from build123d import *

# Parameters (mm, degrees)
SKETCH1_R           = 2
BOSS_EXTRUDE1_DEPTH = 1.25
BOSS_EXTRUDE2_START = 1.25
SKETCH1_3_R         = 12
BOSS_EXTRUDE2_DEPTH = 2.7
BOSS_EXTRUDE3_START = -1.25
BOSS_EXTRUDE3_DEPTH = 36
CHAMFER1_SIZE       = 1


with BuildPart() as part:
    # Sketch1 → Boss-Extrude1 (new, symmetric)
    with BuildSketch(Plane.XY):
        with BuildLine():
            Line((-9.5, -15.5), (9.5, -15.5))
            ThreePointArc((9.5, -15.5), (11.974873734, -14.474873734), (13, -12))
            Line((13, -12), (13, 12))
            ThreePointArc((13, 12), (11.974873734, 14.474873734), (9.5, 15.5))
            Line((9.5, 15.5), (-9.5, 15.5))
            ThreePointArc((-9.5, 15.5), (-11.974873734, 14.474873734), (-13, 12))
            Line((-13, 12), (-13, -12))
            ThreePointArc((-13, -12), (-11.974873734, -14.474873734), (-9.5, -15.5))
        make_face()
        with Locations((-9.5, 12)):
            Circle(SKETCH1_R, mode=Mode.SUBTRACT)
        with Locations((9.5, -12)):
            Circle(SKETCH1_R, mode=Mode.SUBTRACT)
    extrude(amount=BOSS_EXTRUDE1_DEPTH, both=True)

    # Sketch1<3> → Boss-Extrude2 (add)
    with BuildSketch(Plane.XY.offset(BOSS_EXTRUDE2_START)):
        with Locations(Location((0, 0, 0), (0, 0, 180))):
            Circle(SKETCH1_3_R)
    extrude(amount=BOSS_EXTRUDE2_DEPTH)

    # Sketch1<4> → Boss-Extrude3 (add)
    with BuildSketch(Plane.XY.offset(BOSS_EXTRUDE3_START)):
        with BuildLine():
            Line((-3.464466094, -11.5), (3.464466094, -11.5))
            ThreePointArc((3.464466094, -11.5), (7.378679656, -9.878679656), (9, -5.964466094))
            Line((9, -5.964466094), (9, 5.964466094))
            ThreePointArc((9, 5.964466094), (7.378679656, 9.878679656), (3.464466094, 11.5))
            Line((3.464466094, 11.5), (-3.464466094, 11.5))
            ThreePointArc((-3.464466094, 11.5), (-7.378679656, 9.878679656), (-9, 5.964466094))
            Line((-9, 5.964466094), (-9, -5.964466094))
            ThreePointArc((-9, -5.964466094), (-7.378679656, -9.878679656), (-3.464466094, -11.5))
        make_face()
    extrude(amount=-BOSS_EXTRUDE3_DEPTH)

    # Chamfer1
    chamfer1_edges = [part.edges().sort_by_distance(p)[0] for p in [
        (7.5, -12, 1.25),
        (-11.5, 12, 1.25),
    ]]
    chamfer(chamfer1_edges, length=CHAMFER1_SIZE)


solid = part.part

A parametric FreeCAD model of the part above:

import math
import FreeCAD as App
import Part
import Sketcher
Q = App.Units.Quantity


def edges_at(feature, points):
    """Names of the edges that pass closest to the given points."""
    edges = feature.Shape.Edges
    near = lambda p: min(range(len(edges)), key=lambda i: edges[i].distToShape(Part.Vertex(*p))[0])
    return sorted({f"Edge{near(p) + 1}" for p in points})

doc = App.newDocument("Part")
params = doc.addObject("Spreadsheet::Sheet", "Params")
for row, (alias, value) in enumerate([
    ("sketch1_diameter", "4 mm"),
    ("sketch1_radius", "3.5 mm"),
    ("sketch1_width", "19 mm"),
    ("sketch1_height", "24 mm"),
    ("pad1_length", "2.5 mm"),
    ("sketch2_diameter", "24 mm"),
    ("pad2_length", "2.7 mm"),
    ("pad3_length", "36 mm"),
    ("chamfer_size", "1 mm"),
], start=1):
    params.set(f"A{row}", alias)
    params.set(f"B{row}", "=" + value)
    params.setAlias(f"B{row}", alias)

body = doc.addObject("PartDesign::Body", "Body")

# Sketch on XY plane
sketch1 = body.newObject("Sketcher::SketchObject", "Sketch")
sketch1.AttachmentSupport = (doc.getObject("XY_Plane"), [""])
sketch1.MapMode = "FlatFace"
sketch1.addGeometry(Part.LineSegment(App.Vector(-9.5, -15.5, 0), App.Vector(9.5, -15.5, 0)), False)
sketch1.addGeometry(Part.ArcOfCircle(Part.Circle(App.Vector(9.5, -12, 0), App.Vector(0, 0, 1), 3.5), math.radians(-90), math.radians(0)), False)
sketch1.addGeometry(Part.LineSegment(App.Vector(13, -12, 0), App.Vector(13, 12, 0)), False)
sketch1.addGeometry(Part.ArcOfCircle(Part.Circle(App.Vector(9.5, 12, 0), App.Vector(0, 0, 1), 3.5), math.radians(0), math.radians(90)), False)
sketch1.addGeometry(Part.LineSegment(App.Vector(9.5, 15.5, 0), App.Vector(-9.5, 15.5, 0)), False)
sketch1.addGeometry(Part.ArcOfCircle(Part.Circle(App.Vector(-9.5, 12, 0), App.Vector(0, 0, 1), 3.5), math.radians(90), math.radians(180)), False)
sketch1.addGeometry(Part.LineSegment(App.Vector(-13, 12, 0), App.Vector(-13, -12, 0)), False)
sketch1.addGeometry(Part.ArcOfCircle(Part.Circle(App.Vector(-9.5, -12, 0), App.Vector(0, 0, 1), 3.5), math.radians(-180), math.radians(-90)), False)
sketch1.addGeometry(Part.Circle(App.Vector(9.5, -12, 0), App.Vector(0, 0, 1), 2), False)
sketch1.addGeometry(Part.Circle(App.Vector(-9.5, 12, 0), App.Vector(0, 0, 1), 2), False)
sketch1.addConstraint(Sketcher.Constraint("Tangent", 0, 2, 1, 1))
sketch1.addConstraint(Sketcher.Constraint("Tangent", 1, 2, 2, 1))
sketch1.addConstraint(Sketcher.Constraint("Tangent", 2, 2, 3, 1))
sketch1.addConstraint(Sketcher.Constraint("Tangent", 3, 2, 4, 1))
sketch1.addConstraint(Sketcher.Constraint("Tangent", 4, 2, 5, 1))
sketch1.addConstraint(Sketcher.Constraint("Tangent", 5, 2, 6, 1))
sketch1.addConstraint(Sketcher.Constraint("Tangent", 6, 2, 7, 1))
sketch1.addConstraint(Sketcher.Constraint("Tangent", 7, 2, 0, 1))
sketch1.addConstraint(Sketcher.Constraint("Horizontal", 0))
sketch1.addConstraint(Sketcher.Constraint("Vertical", 2))
sketch1.addConstraint(Sketcher.Constraint("Horizontal", 4))
sketch1.addConstraint(Sketcher.Constraint("Vertical", 6))
sketch1.addConstraint(Sketcher.Constraint("Coincident", 8, 3, 1, 3))
sketch1.addConstraint(Sketcher.Constraint("Coincident", 9, 3, 5, 3))
sketch1.addConstraint(Sketcher.Constraint("Equal", 1, 3))
sketch1.addConstraint(Sketcher.Constraint("Equal", 3, 5))
sketch1.addConstraint(Sketcher.Constraint("Equal", 5, 7))
sketch1.addConstraint(Sketcher.Constraint("Equal", 8, 9))
sketch1.addConstraint(Sketcher.Constraint("Symmetric", 1, 3, 5, 3, -1, 1))
sketch1.addConstraint(Sketcher.Constraint("Diameter", 8, Q("4 mm")))
sketch1.addConstraint(Sketcher.Constraint("Radius", 1, Q("3.5 mm")))
sketch1.addConstraint(Sketcher.Constraint("DistanceX", 0, 1, 0, 2, Q("19 mm")))
sketch1.addConstraint(Sketcher.Constraint("DistanceY", 2, 1, 2, 2, Q("24 mm")))
sketch1.setExpression("Constraints[19]", "Params.sketch1_diameter")
sketch1.setExpression("Constraints[20]", "Params.sketch1_radius")
sketch1.setExpression("Constraints[21]", "Params.sketch1_width")
sketch1.setExpression("Constraints[22]", "Params.sketch1_height")
pad1 = body.newObject("PartDesign::Pad", "Pad")
pad1.Profile = sketch1
pad1.setExpression("Length", "Params.pad1_length")
pad1.Midplane = True

# Sketch on XY plane
sketch2 = body.newObject("Sketcher::SketchObject", "Sketch001")
sketch2.AttachmentSupport = (doc.getObject("XY_Plane"), [""])
sketch2.MapMode = "FlatFace"
sketch2.AttachmentOffset = App.Placement(App.Vector(0, 0, 1.25), App.Rotation())
sketch2.addGeometry(Part.Circle(App.Vector(0, 0, 0), App.Vector(0, 0, 1), 12), False)
sketch2.addConstraint(Sketcher.Constraint("Coincident", 0, 3, -1, 1))
sketch2.addConstraint(Sketcher.Constraint("Diameter", 0, Q("24 mm")))
sketch2.setExpression("Constraints[1]", "Params.sketch2_diameter")
pad2 = body.newObject("PartDesign::Pad", "Pad001")
pad2.Profile = sketch2
pad2.setExpression("Length", "Params.pad2_length")

# Sketch on XY plane
sketch3 = body.newObject("Sketcher::SketchObject", "Sketch002")
sketch3.AttachmentSupport = (doc.getObject("XY_Plane"), [""])
sketch3.MapMode = "FlatFace"
sketch3.AttachmentOffset = App.Placement(App.Vector(0, 0, -1.25), App.Rotation())
sketch3.addGeometry(Part.LineSegment(App.Vector(-3, -12, 0), App.Vector(3, -12, 0)), False)
sketch3.addGeometry(Part.ArcOfCircle(Part.Circle(App.Vector(3, -6, 0), App.Vector(0, 0, 1), 6), math.radians(-90), math.radians(0)), False)
sketch3.addGeometry(Part.LineSegment(App.Vector(9, -6, 0), App.Vector(9, 6, 0)), False)
sketch3.addGeometry(Part.ArcOfCircle(Part.Circle(App.Vector(3, 6, 0), App.Vector(0, 0, 1), 6), math.radians(0), math.radians(90)), False)
sketch3.addGeometry(Part.LineSegment(App.Vector(3, 12, 0), App.Vector(-3, 12, 0)), False)
sketch3.addGeometry(Part.ArcOfCircle(Part.Circle(App.Vector(-3, 6, 0), App.Vector(0, 0, 1), 6), math.radians(90), math.radians(180)), False)
sketch3.addGeometry(Part.LineSegment(App.Vector(-9, 6, 0), App.Vector(-9, -6, 0)), False)
sketch3.addGeometry(Part.ArcOfCircle(Part.Circle(App.Vector(-3, -6, 0), App.Vector(0, 0, 1), 6), math.radians(-180), math.radians(-90)), False)
sketch3.addConstraint(Sketcher.Constraint("Tangent", 0, 2, 1, 1))
sketch3.addConstraint(Sketcher.Constraint("Tangent", 1, 2, 2, 1))
sketch3.addConstraint(Sketcher.Constraint("Tangent", 2, 2, 3, 1))
sketch3.addConstraint(Sketcher.Constraint("Tangent", 3, 2, 4, 1))
sketch3.addConstraint(Sketcher.Constraint("Tangent", 4, 2, 5, 1))
sketch3.addConstraint(Sketcher.Constraint("Tangent", 5, 2, 6, 1))
sketch3.addConstraint(Sketcher.Constraint("Tangent", 6, 2, 7, 1))
sketch3.addConstraint(Sketcher.Constraint("Tangent", 7, 2, 0, 1))
sketch3.addConstraint(Sketcher.Constraint("Horizontal", 0))
sketch3.addConstraint(Sketcher.Constraint("Vertical", 2))
sketch3.addConstraint(Sketcher.Constraint("Horizontal", 4))
sketch3.addConstraint(Sketcher.Constraint("Vertical", 6))
sketch3.addConstraint(Sketcher.Constraint("Equal", 1, 3))
sketch3.addConstraint(Sketcher.Constraint("Equal", 3, 5))
sketch3.addConstraint(Sketcher.Constraint("Equal", 5, 7))
sketch3.addConstraint(Sketcher.Constraint("Symmetric", 1, 3, 5, 3, -1, 1))
sketch3.addConstraint(Sketcher.Constraint("DistanceX", -1, 1, 1, 2, Q("9 mm")))
sketch3.addConstraint(Sketcher.Constraint("DistanceY", 0, 2, -1, 1, Q("11.5 mm")))
sketch3.addConstraint(Sketcher.Constraint("Radius", 1, Q("5.535534 mm")))
pad3 = body.newObject("PartDesign::Pad", "Pad002")
pad3.Profile = sketch3
pad3.setExpression("Length", "Params.pad3_length")
pad3.Reversed = True
doc.recompute()

chamfer = body.newObject("PartDesign::Chamfer", "Chamfer")
chamfer.Base = (pad3, edges_at(pad3, [(7.5, -12, 1.25), (-11.5, 12, 1.25)]))
chamfer.setExpression("Size", "Params.chamfer_size")

doc.recompute()
